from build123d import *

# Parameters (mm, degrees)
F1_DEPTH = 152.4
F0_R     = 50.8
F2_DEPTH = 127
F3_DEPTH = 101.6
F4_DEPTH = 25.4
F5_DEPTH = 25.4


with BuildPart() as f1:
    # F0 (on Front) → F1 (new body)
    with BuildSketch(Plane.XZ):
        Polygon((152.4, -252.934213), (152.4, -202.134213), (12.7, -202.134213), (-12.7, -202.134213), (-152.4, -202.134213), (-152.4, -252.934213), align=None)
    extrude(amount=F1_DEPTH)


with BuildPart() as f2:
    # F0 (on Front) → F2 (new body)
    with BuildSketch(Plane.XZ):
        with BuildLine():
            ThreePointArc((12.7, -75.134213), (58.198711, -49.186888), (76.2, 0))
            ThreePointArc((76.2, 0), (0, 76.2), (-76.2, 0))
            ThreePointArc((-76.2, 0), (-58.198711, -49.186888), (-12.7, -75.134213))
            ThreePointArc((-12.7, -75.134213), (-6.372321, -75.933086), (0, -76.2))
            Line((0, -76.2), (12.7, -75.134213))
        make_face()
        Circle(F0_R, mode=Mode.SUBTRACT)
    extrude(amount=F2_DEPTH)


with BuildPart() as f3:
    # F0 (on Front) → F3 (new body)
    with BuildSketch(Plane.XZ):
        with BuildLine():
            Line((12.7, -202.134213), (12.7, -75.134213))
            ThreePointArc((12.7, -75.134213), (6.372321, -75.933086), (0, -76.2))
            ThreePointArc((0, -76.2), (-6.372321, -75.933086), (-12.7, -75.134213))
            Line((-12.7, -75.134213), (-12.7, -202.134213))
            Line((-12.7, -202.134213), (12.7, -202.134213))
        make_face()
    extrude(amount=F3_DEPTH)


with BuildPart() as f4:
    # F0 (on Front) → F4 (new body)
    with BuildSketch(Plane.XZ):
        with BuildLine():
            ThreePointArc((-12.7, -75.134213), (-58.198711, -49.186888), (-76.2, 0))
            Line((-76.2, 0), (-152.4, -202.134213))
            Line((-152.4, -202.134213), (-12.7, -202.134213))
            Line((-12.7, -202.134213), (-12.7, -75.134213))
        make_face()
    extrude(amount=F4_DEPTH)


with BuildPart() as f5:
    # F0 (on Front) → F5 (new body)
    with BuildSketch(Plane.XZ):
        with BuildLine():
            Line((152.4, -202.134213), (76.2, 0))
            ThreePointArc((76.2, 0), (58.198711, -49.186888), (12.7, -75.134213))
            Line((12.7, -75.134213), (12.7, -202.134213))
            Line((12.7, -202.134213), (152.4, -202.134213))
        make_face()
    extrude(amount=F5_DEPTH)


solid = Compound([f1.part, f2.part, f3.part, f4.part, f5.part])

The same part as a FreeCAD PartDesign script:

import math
import FreeCAD as App
import Part
import Sketcher

V = App.Vector
Q = App.Units.Quantity


def add_polygon(sketch, points):
    """Adds a closed chain of lines whose ends are joined by coincident constraints."""
    first, n = sketch.GeometryCount, len(points)
    for a, b in zip(points, points[1:] + points[:1]):
        sketch.addGeometry(Part.LineSegment(App.Vector(*a, 0), App.Vector(*b, 0)), False)
    for i in range(n):
        sketch.addConstraint(Sketcher.Constraint("Coincident", first + i, 2, first + (i + 1) % n, 1))

doc = App.newDocument("Part")
body = doc.addObject("PartDesign::Body", "Body")

sketch1 = body.newObject("Sketcher::SketchObject", "Sketch")
sketch1.AttachmentSupport = (doc.getObject("XZ_Plane"), [""])
sketch1.MapMode = "FlatFace"
add_polygon(sketch1, [(152.4, -252.934213), (152.4, -202.134213), (-152.4, -202.134213), (-152.4, -252.934213)])
sketch1.addConstraint([
    Sketcher.Constraint("Vertical", 0),
    Sketcher.Constraint("Horizontal", 1),
    Sketcher.Constraint("Vertical", 2),
    Sketcher.Constraint("Horizontal", 3),
    Sketcher.Constraint("DistanceX", 1, 2, 1, 1, Q("12 in")),
    Sketcher.Constraint("DistanceY", 0, 1, 0, 2, Q("2 in")),
    Sketcher.Constraint("DistanceX", -1, 1, 0, 2, Q("6 in")),
    Sketcher.Constraint("DistanceY", 0, 2, -1, 1, 202.134213),
])
pad1 = body.newObject("PartDesign::Pad", "Pad")
pad1.Profile = sketch1
pad1.Length = Q("6 in")
body2 = doc.addObject("PartDesign::Body", "Body001")

sketch2 = body2.newObject("Sketcher::SketchObject", "Sketch001")
sketch2.AttachmentSupport = (doc.getObject("XZ_Plane001"), [""])
sketch2.MapMode = "FlatFace"
sketch2.addGeometry([
    Part.ArcOfCircle(Part.Circle(V(-0.000001, 0.000001, 0), V(0, 0, 1), 76.200001), math.radians(-80.405931), math.radians(-0.000001)),
    Part.ArcOfCircle(Part.Circle(V(0, 0, 0), V(0, 0, 1), 76.2), math.radians(0), math.radians(180)),
    Part.ArcOfCircle(Part.Circle(V(0.000001, 0.000001, 0), V(0, 0, 1), 76.200001), math.radians(-179.999999), math.radians(-99.594069)),
    Part.ArcOfCircle(Part.Circle(V(-0.000005, -0.00008, 0), V(0, 0, 1), 76.19992), math.radians(-99.594074), math.radians(-89.999996)),
    Part.LineSegment(V(0, -76.2, 0), V(12.7, -75.134213, 0)),
    Part.Circle(V(0, 0, 0), V(0, 0, 1), 50.8),
], False)
sketch2.addConstraint([
    Sketcher.Constraint("Coincident", 0, 2, 1, 1),
    Sketcher.Constraint("Coincident", 1, 2, 2, 1),
    Sketcher.Constraint("Coincident", 2, 2, 3, 1),
    Sketcher.Constraint("Coincident", 3, 2, 4, 1),
    Sketcher.Constraint("Coincident", 4, 2, 0, 1),
    Sketcher.Constraint("Coincident", 0, 3, -1, 1),
    Sketcher.Constraint("Coincident", 1, 3, -1, 1),
    Sketcher.Constraint("Coincident", 2, 3, -1, 1),
    Sketcher.Constraint("Coincident", 5, 3, -1, 1),
    Sketcher.Constraint("PointOnObject", 0, 2, -1),
    Sketcher.Constraint("PointOnObject", 1, 2, -1),
    Sketcher.Constraint("PointOnObject", 3, 2, -2),
    Sketcher.Constraint("Diameter", 5, Q("4 in")),
    Sketcher.Constraint("Radius", 0, Q("3.0000001 in")),
    Sketcher.Constraint("DistanceY", 3, 2, -1, 1, Q("3 in")),
    Sketcher.Constraint("DistanceX", 2, 2, 4, 2, Q("1 in")),
    Sketcher.Constraint("DistanceX", 2, 2, -1, 1, Q("0.5 in")),
    Sketcher.Constraint("Radius", 3, 76.19992),
])
pad2 = body2.newObject("PartDesign::Pad", "Pad001")
pad2.Profile = sketch2
pad2.Length = Q("5 in")
body3 = doc.addObject("PartDesign::Body", "Body002")

sketch3 = body3.newObject("Sketcher::SketchObject", "Sketch002")
sketch3.AttachmentSupport = (doc.getObject("XZ_Plane002"), [""])
sketch3.MapMode = "FlatFace"
sketch3.addGeometry([
    Part.LineSegment(V(12.7, -202.134213, 0), V(12.7, -75.134213, 0)),
    Part.ArcOfCircle(Part.Circle(V(0.000005, -0.00008, 0), V(0, 0, 1), 76.19992), math.radians(-90.000004), math.radians(-80.405926)),
    Part.ArcOfCircle(Part.Circle(V(-0.000005, -0.00008, 0), V(0, 0, 1), 76.19992), math.radians(-99.594074), math.radians(-89.999996)),
    Part.LineSegment(V(-12.7, -75.134213, 0), V(-12.7, -202.134213, 0)),
    Part.LineSegment(V(-12.7, -202.134213, 0), V(12.7, -202.134213, 0)),
], False)
sketch3.addConstraint([
    Sketcher.Constraint("Coincident", 0, 2, 1, 2),
    Sketcher.Constraint("Tangent", 1, 1, 2, 2),
    Sketcher.Constraint("Coincident", 2, 1, 3, 1),
    Sketcher.Constraint("Coincident", 3, 2, 4, 1),
    Sketcher.Constraint("Coincident", 4, 2, 0, 1),
    Sketcher.Constraint("Vertical", 0),
    Sketcher.Constraint("Vertical", 3),
    Sketcher.Constraint("Horizontal", 4),
    Sketcher.Constraint("Equal", 1, 2),
    Sketcher.Constraint("Symmetric", 0, 2, 2, 1, -2),
    Sketcher.Constraint("PointOnObject", 1, 1, -2),
    Sketcher.Constraint("DistanceX", 4, 1, 4, 2, Q("1 in")),
    Sketcher.Constraint("DistanceY", 0, 1, 0, 2, Q("5 in")),
    Sketcher.Constraint("DistanceY", 1, 1, -1, 1, Q("3 in")),
    Sketcher.Constraint("Radius", 1, 76.19992),
])
pad3 = body3.newObject("PartDesign::Pad", "Pad002")
pad3.Profile = sketch3
pad3.Length = Q("4 in")
body4 = doc.addObject("PartDesign::Body", "Body003")

sketch4 = body4.newObject("Sketcher::SketchObject", "Sketch003")
sketch4.AttachmentSupport = (doc.getObject("XZ_Plane003"), [""])
sketch4.MapMode = "FlatFace"
sketch4.addGeometry([
    Part.ArcOfCircle(Part.Circle(V(0.000001, 0.000001, 0), V(0, 0, 1), 76.200001), math.radians(-179.999999), math.radians(-99.594069)),
    Part.LineSegment(V(-76.2, 0, 0), V(-152.4, -202.134213, 0)),
    Part.LineSegment(V(-152.4, -202.134213, 0), V(-12.7, -202.134213, 0)),
    Part.LineSegment(V(-12.7, -202.134213, 0), V(-12.7, -75.134213, 0)),
], False)
sketch4.addConstraint([
    Sketcher.Constraint("Coincident", 0, 1, 1, 1),
    Sketcher.Constraint("Coincident", 1, 2, 2, 1),
    Sketcher.Constraint("Coincident", 2, 2, 3, 1),
    Sketcher.Constraint("Coincident", 3, 2, 0, 2),
    Sketcher.Constraint("Horizontal", 2),
    Sketcher.Constraint("Vertical", 3),
    Sketcher.Constraint("Coincident", 0, 3, -1, 1),
    Sketcher.Constraint("PointOnObject", 0, 1, -1),
    Sketcher.Constraint("Radius", 0, Q("3.0000001 in")),
    Sketcher.Constraint("DistanceY", 3, 1, 3, 2, Q("5 in")),
    Sketcher.Constraint("DistanceX", 2, 1, 2, 2, Q("5.5 in")),
    Sketcher.Constraint("DistanceX", 1, 2, -1, 1, Q("6 in")),
])
pad4 = body4.newObject("PartDesign::Pad", "Pad003")
pad4.Profile = sketch4
pad4.Length = Q("1 in")
body5 = doc.addObject("PartDesign::Body", "Body004")

sketch5 = body5.newObject("Sketcher::SketchObject", "Sketch004")
sketch5.AttachmentSupport = (doc.getObject("XZ_Plane004"), [""])
sketch5.MapMode = "FlatFace"
sketch5.addGeometry([
    Part.LineSegment(V(152.4, -202.134213, 0), V(76.2, 0, 0)),
    Part.ArcOfCircle(Part.Circle(V(-0.000001, 0.000001, 0), V(0, 0, 1), 76.200001), math.radians(-80.405931), math.radians(-0.000001)),
    Part.LineSegment(V(12.7, -75.134213, 0), V(12.7, -202.134213, 0)),
    Part.LineSegment(V(12.7, -202.134213, 0), V(152.4, -202.134213, 0)),
], False)
sketch5.addConstraint([
    Sketcher.Constraint("Coincident", 0, 2, 1, 2),
    Sketcher.Constraint("Coincident", 1, 1, 2, 1),
    Sketcher.Constraint("Coincident", 2, 2, 3, 1),
    Sketcher.Constraint("Coincident", 3, 2, 0, 1),
    Sketcher.Constraint("Vertical", 2),
    Sketcher.Constraint("Horizontal", 3),
    Sketcher.Constraint("Coincident", 1, 3, -1, 1),
    Sketcher.Constraint("PointOnObject", 0, 2, -1),
    Sketcher.Constraint("Radius", 1, Q("3.0000001 in")),
    Sketcher.Constraint("DistanceY", 2, 2, 2, 1, Q("5 in")),
    Sketcher.Constraint("DistanceX", 3, 1, 3, 2, Q("5.5 in")),
    Sketcher.Constraint("DistanceX", -1, 1, 3, 2, Q("6 in")),
])
pad5 = body5.newObject("PartDesign::Pad", "Pad004")
pad5.Profile = sketch5
pad5.Length = Q("1 in")

doc.recompute()
